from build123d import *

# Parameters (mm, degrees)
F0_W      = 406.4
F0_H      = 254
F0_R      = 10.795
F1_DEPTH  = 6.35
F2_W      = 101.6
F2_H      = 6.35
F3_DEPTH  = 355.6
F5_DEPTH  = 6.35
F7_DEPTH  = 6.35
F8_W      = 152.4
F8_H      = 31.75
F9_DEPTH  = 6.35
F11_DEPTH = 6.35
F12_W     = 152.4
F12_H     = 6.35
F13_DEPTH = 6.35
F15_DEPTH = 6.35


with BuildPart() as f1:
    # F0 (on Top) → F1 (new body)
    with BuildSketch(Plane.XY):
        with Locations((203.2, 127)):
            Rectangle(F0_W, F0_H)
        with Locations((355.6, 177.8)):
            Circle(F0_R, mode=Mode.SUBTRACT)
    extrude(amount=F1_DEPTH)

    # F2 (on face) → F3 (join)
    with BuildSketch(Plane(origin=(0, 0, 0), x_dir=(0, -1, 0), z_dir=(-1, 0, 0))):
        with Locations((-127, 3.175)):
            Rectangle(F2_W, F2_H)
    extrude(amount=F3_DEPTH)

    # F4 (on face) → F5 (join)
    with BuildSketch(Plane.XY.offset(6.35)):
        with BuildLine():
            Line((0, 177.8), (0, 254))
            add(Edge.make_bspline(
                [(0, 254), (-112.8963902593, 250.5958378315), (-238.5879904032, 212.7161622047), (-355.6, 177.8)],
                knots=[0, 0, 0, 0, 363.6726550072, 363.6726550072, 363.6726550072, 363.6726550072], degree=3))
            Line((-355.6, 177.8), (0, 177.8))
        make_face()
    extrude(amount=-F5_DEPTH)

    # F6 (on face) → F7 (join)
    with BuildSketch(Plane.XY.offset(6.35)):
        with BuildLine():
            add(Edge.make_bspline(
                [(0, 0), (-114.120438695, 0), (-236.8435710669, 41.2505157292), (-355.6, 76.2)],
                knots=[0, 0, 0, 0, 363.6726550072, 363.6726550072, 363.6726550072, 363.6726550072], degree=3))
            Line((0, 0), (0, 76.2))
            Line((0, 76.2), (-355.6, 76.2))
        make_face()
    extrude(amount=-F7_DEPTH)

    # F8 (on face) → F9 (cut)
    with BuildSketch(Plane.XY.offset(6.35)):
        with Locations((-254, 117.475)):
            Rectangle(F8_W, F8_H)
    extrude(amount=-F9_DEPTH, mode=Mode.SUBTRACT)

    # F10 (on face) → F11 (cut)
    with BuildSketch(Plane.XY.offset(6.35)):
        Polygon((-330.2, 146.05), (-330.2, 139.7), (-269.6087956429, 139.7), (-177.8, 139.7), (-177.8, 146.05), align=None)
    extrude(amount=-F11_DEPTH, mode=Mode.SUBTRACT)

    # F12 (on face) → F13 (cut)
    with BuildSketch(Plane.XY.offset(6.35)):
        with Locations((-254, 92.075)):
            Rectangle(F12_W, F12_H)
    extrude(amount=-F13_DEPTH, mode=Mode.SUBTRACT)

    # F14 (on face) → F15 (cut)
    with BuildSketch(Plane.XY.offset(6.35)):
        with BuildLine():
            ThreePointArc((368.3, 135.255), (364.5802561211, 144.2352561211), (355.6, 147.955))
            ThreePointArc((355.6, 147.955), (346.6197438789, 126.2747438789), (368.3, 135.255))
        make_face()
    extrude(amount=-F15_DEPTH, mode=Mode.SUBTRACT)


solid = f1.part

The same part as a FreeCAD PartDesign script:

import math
import FreeCAD as App
import Part
import Sketcher
from FreeCAD import Vector
Q = App.Units.Quantity

doc = App.newDocument("Part")
body = doc.addObject("PartDesign::Body", "Body")

sketch1 = body.newObject("Sketcher::SketchObject", "Sketch")
sketch1.AttachmentSupport = (doc.getObject("XY_Plane"), [""])
sketch1.MapMode = "FlatFace"
sketch1.addGeometry([
    Part.LineSegment(Vector(0, 254, 0), Vector(0, 0, 0)),
    Part.LineSegment(Vector(0, 0, 0), Vector(406, 0, 0)),
    Part.LineSegment(Vector(406, 0, 0), Vector(406, 254, 0)),
    Part.LineSegment(Vector(406, 254, 0), Vector(0, 254, 0)),
    Part.Circle(Vector(356, 178, 0), Vector(0, 0, 1), 11),
], False)
sketch1.addConstraint([
    Sketcher.Constraint("Coincident", 0, 2, 1, 1),
    Sketcher.Constraint("Coincident", 1, 2, 2, 1),
    Sketcher.Constraint("Coincident", 2, 2, 3, 1),
    Sketcher.Constraint("Coincident", 3, 2, 0, 1),
    Sketcher.Constraint("Vertical", 0),
    Sketcher.Constraint("Horizontal", 1),
    Sketcher.Constraint("Vertical", 2),
    Sketcher.Constraint("Horizontal", 3),
    Sketcher.Constraint("Coincident", 0, 2, -1, 1),
    Sketcher.Constraint("Diameter", 4, Q("0.85 in")),
    Sketcher.Constraint("DistanceX", 1, 1, 1, 2, Q("16 in")),
    Sketcher.Constraint("DistanceY", 0, 2, 0, 1, Q("10 in")),
    Sketcher.Constraint("DistanceX", -1, 1, 4, 3, Q("14 in")),
    Sketcher.Constraint("DistanceY", -1, 1, 4, 3, Q("7 in")),
])
pad1 = body.newObject("PartDesign::Pad", "Pad")
pad1.Profile = sketch1
pad1.Length = Q("0.25 in")

sketch2 = body.newObject("Sketcher::SketchObject", "Sketch001")
sketch2.AttachmentSupport = (doc.getObject("YZ_Plane"), [""])
sketch2.MapMode = "FlatFace"
sketch2.addGeometry([
    Part.LineSegment(Vector(178, 6, 0), Vector(178, 0, 0)),
    Part.LineSegment(Vector(178, 0, 0), Vector(76, 0, 0)),
    Part.LineSegment(Vector(76, 0, 0), Vector(76, 6, 0)),
    Part.LineSegment(Vector(76, 6, 0), Vector(178, 6, 0)),
], False)
sketch2.addConstraint([
    Sketcher.Constraint("Coincident", 0, 2, 1, 1),
    Sketcher.Constraint("Coincident", 1, 2, 2, 1),
    Sketcher.Constraint("Coincident", 2, 2, 3, 1),
    Sketcher.Constraint("Coincident", 3, 2, 0, 1),
    Sketcher.Constraint("Vertical", 0),
    Sketcher.Constraint("Horizontal", 1),
    Sketcher.Constraint("Vertical", 2),
    Sketcher.Constraint("Horizontal", 3),
    Sketcher.Constraint("PointOnObject", 0, 2, -1),
    Sketcher.Constraint("DistanceX", 1, 2, 1, 1, Q("4 in")),
    Sketcher.Constraint("DistanceX", -1, 1, 0, 2, Q("7 in")),
    Sketcher.Constraint("DistanceY", 0, 2, 0, 1, Q("0.25 in")),
])
pad2 = body.newObject("PartDesign::Pad", "Pad001")
pad2.Profile = sketch2
pad2.Length = Q("14 in")
pad2.Reversed = True

sketch3 = body.newObject("Sketcher::SketchObject", "Sketch002")
sketch3.AttachmentSupport = (doc.getObject("XY_Plane"), [""])
sketch3.MapMode = "FlatFace"
sketch3.AttachmentOffset = App.Placement(Vector(0, 0, 0.25 * 25.4), App.Rotation())
sketch3.addGeometry([
    Part.LineSegment(Vector(0, 177.8, 0), Vector(0, 254, 0)),
    Part.BSplineCurve([Vector(0, 254, 0), Vector(-112.89639, 250.595838, 0), Vector(-238.58799, 212.716162, 0), Vector(-355.6, 177.8, 0)], [4, 4], [0, 363.672655007], False, 3, [1, 1, 1, 1], False),
    Part.LineSegment(Vector(-355.6, 177.8, 0), Vector(0, 177.8, 0)),
], False)
sketch3.addConstraint([
    Sketcher.Constraint("Block", 1),
    Sketcher.Constraint("Coincident", 0, 2, 1, 1),
    Sketcher.Constraint("Coincident", 1, 2, 2, 1),
    Sketcher.Constraint("Coincident", 2, 2, 0, 1),
    Sketcher.Constraint("Vertical", 0),
    Sketcher.Constraint("Horizontal", 2),
])
pad3 = body.newObject("PartDesign::Pad", "Pad002")
pad3.Profile = sketch3
pad3.Length = Q("0.25 in")
pad3.Reversed = True

sketch4 = body.newObject("Sketcher::SketchObject", "Sketch003")
sketch4.AttachmentSupport = (doc.getObject("XY_Plane"), [""])
sketch4.MapMode = "FlatFace"
sketch4.AttachmentOffset = App.Placement(Vector(0, 0, 0.25 * 25.4), App.Rotation())
sketch4.addGeometry([
    Part.BSplineCurve([Vector(0, 0, 0), Vector(-114.120439, 0, 0), Vector(-236.843571, 41.250516, 0), Vector(-355.6, 76.2, 0)], [4, 4], [0, 363.672655007], False, 3, [1, 1, 1, 1], False),
    Part.LineSegment(Vector(0, 0, 0), Vector(0, 76.2, 0)),
    Part.LineSegment(Vector(0, 76.2, 0), Vector(-355.6, 76.2, 0)),
], False)
sketch4.addConstraint([
    Sketcher.Constraint("Block", 0),
    Sketcher.Constraint("Coincident", 0, 1, 1, 1),
    Sketcher.Constraint("Coincident", 1, 2, 2, 1),
    Sketcher.Constraint("Coincident", 2, 2, 0, 2),
    Sketcher.Constraint("Vertical", 1),
    Sketcher.Constraint("Horizontal", 2),
])
pad4 = body.newObject("PartDesign::Pad", "Pad003")
pad4.Profile = sketch4
pad4.Length = Q("0.25 in")
pad4.Reversed = True

sketch5 = body.newObject("Sketcher::SketchObject", "Sketch004")
sketch5.AttachmentSupport = (doc.getObject("XY_Plane"), [""])
sketch5.MapMode = "FlatFace"
sketch5.AttachmentOffset = App.Placement(Vector(0, 0, 0.25 * 25.4), App.Rotation())
sketch5.addGeometry([
    Part.LineSegment(Vector(-330, 133, 0), Vector(-330, 102, 0)),
    Part.LineSegment(Vector(-330, 102, 0), Vector(-178, 102, 0)),
    Part.LineSegment(Vector(-178, 102, 0), Vector(-178, 133, 0)),
    Part.LineSegment(Vector(-178, 133, 0), Vector(-330, 133, 0)),
], False)
sketch5.addConstraint([
    Sketcher.Constraint("Coincident", 0, 2, 1, 1),
    Sketcher.Constraint("Coincident", 1, 2, 2, 1),
    Sketcher.Constraint("Coincident", 2, 2, 3, 1),
    Sketcher.Constraint("Coincident", 3, 2, 0, 1),
    Sketcher.Constraint("Vertical", 0),
    Sketcher.Constraint("Horizontal", 1),
    Sketcher.Constraint("Vertical", 2),
    Sketcher.Constraint("Horizontal", 3),
    Sketcher.Constraint("DistanceX", 1, 1, 1, 2, Q("6 in")),
    Sketcher.Constraint("DistanceX", 0, 2, -1, 1, Q("13 in")),
    Sketcher.Constraint("DistanceY", -1, 1, 0, 2, Q("4 in")),
    Sketcher.Constraint("DistanceY", 0, 2, 0, 1, Q("1.25 in")),
])
pocket1 = body.newObject("PartDesign::Pocket", "Pocket")
pocket1.Profile = sketch5
pocket1.Length = Q("0.25 in")

sketch6 = body.newObject("Sketcher::SketchObject", "Sketch005")
sketch6.AttachmentSupport = (doc.getObject("XY_Plane"), [""])
sketch6.MapMode = "FlatFace"
sketch6.AttachmentOffset = App.Placement(Vector(0, 0, 0.25 * 25.4), App.Rotation())
sketch6.addGeometry([
    Part.LineSegment(Vector(-330, 146, 0), Vector(-330, 140, 0)),
    Part.LineSegment(Vector(-330, 140, 0), Vector(-178, 140, 0)),
    Part.LineSegment(Vector(-178, 140, 0), Vector(-178, 146, 0)),
    Part.LineSegment(Vector(-178, 146, 0), Vector(-330, 146, 0)),
], False)
sketch6.addConstraint([
    Sketcher.Constraint("Coincident", 0, 2, 1, 1),
    Sketcher.Constraint("Coincident", 1, 2, 2, 1),
    Sketcher.Constraint("Coincident", 2, 2, 3, 1),
    Sketcher.Constraint("Coincident", 3, 2, 0, 1),
    Sketcher.Constraint("Vertical", 0),
    Sketcher.Constraint("Horizontal", 1),
    Sketcher.Constraint("Vertical", 2),
    Sketcher.Constraint("Horizontal", 3),
    Sketcher.Constraint("DistanceX", 1, 1, 1, 2, Q("6 in")),
    Sketcher.Constraint("DistanceX", 0, 2, -1, 1, Q("13 in")),
    Sketcher.Constraint("DistanceY", 0, 2, 0, 1, Q("0.25 in")),
    Sketcher.Constraint("DistanceY", -1, 1, 0, 2, Q("5.5 in")),
])
pocket2 = body.newObject("PartDesign::Pocket", "Pocket001")
pocket2.Profile = sketch6
pocket2.Length = Q("0.25 in")

sketch7 = body.newObject("Sketcher::SketchObject", "Sketch006")
sketch7.AttachmentSupport = (doc.getObject("XY_Plane"), [""])
sketch7.MapMode = "FlatFace"
sketch7.AttachmentOffset = App.Placement(Vector(0, 0, 0.25 * 25.4), App.Rotation())
sketch7.addGeometry([
    Part.LineSegment(Vector(-330, 95, 0), Vector(-330, 89, 0)),
    Part.LineSegment(Vector(-330, 89, 0), Vector(-178, 89, 0)),
    Part.LineSegment(Vector(-178, 89, 0), Vector(-178, 95, 0)),
    Part.LineSegment(Vector(-178, 95, 0), Vector(-330, 95, 0)),
], False)
sketch7.addConstraint([
    Sketcher.Constraint("Coincident", 0, 2, 1, 1),
    Sketcher.Constraint("Coincident", 1, 2, 2, 1),
    Sketcher.Constraint("Coincident", 2, 2, 3, 1),
    Sketcher.Constraint("Coincident", 3, 2, 0, 1),
    Sketcher.Constraint("Vertical", 0),
    Sketcher.Constraint("Horizontal", 1),
    Sketcher.Constraint("Vertical", 2),
    Sketcher.Constraint("Horizontal", 3),
    Sketcher.Constraint("DistanceX", 1, 1, 1, 2, Q("6 in")),
    Sketcher.Constraint("DistanceX", 0, 2, -1, 1, Q("13 in")),
    Sketcher.Constraint("DistanceY", 0, 2, 0, 1, Q("0.25 in")),
    Sketcher.Constraint("DistanceY", -1, 1, 0, 2, Q("3.5 in")),
])
pocket3 = body.newObject("PartDesign::Pocket", "Pocket002")
pocket3.Profile = sketch7
pocket3.Length = Q("0.25 in")

sketch8 = body.newObject("Sketcher::SketchObject", "Sketch007")
sketch8.AttachmentSupport = (doc.getObject("XY_Plane"), [""])
sketch8.MapMode = "FlatFace"
sketch8.AttachmentOffset = App.Placement(Vector(0, 0, 0.25 * 25.4), App.Rotation())
sketch8.addGeometry([
    Part.ArcOfCircle(Part.Circle(Vector(356, 135, 0), Vector(0, 0, 1), 13), math.radians(0), math.radians(90)),
    Part.ArcOfCircle(Part.Circle(Vector(356, 135, 0), Vector(0, 0, 1), 13), math.radians(90), math.radians(360)),
], False)
sketch8.addConstraint([
    Sketcher.Constraint("Tangent", 0, 1, 1, 2),
    Sketcher.Constraint("Coincident", 1, 1, 0, 2),
    Sketcher.Constraint("Horizontal", 1, 3, 0, 1),
    Sketcher.Constraint("Vertical", 0, 3, 1, 1),
    Sketcher.Constraint("Radius", 0, Q("0.5 in")),
    Sketcher.Constraint("DistanceX", -1, 1, 0, 3, Q("14 in")),
    Sketcher.Constraint("DistanceY", -1, 1, 0, 3, Q("5.325 in")),
])
pocket4 = body.newObject("PartDesign::Pocket", "Pocket003")
pocket4.Profile = sketch8
pocket4.Length = Q("0.25 in")

doc.recompute()
